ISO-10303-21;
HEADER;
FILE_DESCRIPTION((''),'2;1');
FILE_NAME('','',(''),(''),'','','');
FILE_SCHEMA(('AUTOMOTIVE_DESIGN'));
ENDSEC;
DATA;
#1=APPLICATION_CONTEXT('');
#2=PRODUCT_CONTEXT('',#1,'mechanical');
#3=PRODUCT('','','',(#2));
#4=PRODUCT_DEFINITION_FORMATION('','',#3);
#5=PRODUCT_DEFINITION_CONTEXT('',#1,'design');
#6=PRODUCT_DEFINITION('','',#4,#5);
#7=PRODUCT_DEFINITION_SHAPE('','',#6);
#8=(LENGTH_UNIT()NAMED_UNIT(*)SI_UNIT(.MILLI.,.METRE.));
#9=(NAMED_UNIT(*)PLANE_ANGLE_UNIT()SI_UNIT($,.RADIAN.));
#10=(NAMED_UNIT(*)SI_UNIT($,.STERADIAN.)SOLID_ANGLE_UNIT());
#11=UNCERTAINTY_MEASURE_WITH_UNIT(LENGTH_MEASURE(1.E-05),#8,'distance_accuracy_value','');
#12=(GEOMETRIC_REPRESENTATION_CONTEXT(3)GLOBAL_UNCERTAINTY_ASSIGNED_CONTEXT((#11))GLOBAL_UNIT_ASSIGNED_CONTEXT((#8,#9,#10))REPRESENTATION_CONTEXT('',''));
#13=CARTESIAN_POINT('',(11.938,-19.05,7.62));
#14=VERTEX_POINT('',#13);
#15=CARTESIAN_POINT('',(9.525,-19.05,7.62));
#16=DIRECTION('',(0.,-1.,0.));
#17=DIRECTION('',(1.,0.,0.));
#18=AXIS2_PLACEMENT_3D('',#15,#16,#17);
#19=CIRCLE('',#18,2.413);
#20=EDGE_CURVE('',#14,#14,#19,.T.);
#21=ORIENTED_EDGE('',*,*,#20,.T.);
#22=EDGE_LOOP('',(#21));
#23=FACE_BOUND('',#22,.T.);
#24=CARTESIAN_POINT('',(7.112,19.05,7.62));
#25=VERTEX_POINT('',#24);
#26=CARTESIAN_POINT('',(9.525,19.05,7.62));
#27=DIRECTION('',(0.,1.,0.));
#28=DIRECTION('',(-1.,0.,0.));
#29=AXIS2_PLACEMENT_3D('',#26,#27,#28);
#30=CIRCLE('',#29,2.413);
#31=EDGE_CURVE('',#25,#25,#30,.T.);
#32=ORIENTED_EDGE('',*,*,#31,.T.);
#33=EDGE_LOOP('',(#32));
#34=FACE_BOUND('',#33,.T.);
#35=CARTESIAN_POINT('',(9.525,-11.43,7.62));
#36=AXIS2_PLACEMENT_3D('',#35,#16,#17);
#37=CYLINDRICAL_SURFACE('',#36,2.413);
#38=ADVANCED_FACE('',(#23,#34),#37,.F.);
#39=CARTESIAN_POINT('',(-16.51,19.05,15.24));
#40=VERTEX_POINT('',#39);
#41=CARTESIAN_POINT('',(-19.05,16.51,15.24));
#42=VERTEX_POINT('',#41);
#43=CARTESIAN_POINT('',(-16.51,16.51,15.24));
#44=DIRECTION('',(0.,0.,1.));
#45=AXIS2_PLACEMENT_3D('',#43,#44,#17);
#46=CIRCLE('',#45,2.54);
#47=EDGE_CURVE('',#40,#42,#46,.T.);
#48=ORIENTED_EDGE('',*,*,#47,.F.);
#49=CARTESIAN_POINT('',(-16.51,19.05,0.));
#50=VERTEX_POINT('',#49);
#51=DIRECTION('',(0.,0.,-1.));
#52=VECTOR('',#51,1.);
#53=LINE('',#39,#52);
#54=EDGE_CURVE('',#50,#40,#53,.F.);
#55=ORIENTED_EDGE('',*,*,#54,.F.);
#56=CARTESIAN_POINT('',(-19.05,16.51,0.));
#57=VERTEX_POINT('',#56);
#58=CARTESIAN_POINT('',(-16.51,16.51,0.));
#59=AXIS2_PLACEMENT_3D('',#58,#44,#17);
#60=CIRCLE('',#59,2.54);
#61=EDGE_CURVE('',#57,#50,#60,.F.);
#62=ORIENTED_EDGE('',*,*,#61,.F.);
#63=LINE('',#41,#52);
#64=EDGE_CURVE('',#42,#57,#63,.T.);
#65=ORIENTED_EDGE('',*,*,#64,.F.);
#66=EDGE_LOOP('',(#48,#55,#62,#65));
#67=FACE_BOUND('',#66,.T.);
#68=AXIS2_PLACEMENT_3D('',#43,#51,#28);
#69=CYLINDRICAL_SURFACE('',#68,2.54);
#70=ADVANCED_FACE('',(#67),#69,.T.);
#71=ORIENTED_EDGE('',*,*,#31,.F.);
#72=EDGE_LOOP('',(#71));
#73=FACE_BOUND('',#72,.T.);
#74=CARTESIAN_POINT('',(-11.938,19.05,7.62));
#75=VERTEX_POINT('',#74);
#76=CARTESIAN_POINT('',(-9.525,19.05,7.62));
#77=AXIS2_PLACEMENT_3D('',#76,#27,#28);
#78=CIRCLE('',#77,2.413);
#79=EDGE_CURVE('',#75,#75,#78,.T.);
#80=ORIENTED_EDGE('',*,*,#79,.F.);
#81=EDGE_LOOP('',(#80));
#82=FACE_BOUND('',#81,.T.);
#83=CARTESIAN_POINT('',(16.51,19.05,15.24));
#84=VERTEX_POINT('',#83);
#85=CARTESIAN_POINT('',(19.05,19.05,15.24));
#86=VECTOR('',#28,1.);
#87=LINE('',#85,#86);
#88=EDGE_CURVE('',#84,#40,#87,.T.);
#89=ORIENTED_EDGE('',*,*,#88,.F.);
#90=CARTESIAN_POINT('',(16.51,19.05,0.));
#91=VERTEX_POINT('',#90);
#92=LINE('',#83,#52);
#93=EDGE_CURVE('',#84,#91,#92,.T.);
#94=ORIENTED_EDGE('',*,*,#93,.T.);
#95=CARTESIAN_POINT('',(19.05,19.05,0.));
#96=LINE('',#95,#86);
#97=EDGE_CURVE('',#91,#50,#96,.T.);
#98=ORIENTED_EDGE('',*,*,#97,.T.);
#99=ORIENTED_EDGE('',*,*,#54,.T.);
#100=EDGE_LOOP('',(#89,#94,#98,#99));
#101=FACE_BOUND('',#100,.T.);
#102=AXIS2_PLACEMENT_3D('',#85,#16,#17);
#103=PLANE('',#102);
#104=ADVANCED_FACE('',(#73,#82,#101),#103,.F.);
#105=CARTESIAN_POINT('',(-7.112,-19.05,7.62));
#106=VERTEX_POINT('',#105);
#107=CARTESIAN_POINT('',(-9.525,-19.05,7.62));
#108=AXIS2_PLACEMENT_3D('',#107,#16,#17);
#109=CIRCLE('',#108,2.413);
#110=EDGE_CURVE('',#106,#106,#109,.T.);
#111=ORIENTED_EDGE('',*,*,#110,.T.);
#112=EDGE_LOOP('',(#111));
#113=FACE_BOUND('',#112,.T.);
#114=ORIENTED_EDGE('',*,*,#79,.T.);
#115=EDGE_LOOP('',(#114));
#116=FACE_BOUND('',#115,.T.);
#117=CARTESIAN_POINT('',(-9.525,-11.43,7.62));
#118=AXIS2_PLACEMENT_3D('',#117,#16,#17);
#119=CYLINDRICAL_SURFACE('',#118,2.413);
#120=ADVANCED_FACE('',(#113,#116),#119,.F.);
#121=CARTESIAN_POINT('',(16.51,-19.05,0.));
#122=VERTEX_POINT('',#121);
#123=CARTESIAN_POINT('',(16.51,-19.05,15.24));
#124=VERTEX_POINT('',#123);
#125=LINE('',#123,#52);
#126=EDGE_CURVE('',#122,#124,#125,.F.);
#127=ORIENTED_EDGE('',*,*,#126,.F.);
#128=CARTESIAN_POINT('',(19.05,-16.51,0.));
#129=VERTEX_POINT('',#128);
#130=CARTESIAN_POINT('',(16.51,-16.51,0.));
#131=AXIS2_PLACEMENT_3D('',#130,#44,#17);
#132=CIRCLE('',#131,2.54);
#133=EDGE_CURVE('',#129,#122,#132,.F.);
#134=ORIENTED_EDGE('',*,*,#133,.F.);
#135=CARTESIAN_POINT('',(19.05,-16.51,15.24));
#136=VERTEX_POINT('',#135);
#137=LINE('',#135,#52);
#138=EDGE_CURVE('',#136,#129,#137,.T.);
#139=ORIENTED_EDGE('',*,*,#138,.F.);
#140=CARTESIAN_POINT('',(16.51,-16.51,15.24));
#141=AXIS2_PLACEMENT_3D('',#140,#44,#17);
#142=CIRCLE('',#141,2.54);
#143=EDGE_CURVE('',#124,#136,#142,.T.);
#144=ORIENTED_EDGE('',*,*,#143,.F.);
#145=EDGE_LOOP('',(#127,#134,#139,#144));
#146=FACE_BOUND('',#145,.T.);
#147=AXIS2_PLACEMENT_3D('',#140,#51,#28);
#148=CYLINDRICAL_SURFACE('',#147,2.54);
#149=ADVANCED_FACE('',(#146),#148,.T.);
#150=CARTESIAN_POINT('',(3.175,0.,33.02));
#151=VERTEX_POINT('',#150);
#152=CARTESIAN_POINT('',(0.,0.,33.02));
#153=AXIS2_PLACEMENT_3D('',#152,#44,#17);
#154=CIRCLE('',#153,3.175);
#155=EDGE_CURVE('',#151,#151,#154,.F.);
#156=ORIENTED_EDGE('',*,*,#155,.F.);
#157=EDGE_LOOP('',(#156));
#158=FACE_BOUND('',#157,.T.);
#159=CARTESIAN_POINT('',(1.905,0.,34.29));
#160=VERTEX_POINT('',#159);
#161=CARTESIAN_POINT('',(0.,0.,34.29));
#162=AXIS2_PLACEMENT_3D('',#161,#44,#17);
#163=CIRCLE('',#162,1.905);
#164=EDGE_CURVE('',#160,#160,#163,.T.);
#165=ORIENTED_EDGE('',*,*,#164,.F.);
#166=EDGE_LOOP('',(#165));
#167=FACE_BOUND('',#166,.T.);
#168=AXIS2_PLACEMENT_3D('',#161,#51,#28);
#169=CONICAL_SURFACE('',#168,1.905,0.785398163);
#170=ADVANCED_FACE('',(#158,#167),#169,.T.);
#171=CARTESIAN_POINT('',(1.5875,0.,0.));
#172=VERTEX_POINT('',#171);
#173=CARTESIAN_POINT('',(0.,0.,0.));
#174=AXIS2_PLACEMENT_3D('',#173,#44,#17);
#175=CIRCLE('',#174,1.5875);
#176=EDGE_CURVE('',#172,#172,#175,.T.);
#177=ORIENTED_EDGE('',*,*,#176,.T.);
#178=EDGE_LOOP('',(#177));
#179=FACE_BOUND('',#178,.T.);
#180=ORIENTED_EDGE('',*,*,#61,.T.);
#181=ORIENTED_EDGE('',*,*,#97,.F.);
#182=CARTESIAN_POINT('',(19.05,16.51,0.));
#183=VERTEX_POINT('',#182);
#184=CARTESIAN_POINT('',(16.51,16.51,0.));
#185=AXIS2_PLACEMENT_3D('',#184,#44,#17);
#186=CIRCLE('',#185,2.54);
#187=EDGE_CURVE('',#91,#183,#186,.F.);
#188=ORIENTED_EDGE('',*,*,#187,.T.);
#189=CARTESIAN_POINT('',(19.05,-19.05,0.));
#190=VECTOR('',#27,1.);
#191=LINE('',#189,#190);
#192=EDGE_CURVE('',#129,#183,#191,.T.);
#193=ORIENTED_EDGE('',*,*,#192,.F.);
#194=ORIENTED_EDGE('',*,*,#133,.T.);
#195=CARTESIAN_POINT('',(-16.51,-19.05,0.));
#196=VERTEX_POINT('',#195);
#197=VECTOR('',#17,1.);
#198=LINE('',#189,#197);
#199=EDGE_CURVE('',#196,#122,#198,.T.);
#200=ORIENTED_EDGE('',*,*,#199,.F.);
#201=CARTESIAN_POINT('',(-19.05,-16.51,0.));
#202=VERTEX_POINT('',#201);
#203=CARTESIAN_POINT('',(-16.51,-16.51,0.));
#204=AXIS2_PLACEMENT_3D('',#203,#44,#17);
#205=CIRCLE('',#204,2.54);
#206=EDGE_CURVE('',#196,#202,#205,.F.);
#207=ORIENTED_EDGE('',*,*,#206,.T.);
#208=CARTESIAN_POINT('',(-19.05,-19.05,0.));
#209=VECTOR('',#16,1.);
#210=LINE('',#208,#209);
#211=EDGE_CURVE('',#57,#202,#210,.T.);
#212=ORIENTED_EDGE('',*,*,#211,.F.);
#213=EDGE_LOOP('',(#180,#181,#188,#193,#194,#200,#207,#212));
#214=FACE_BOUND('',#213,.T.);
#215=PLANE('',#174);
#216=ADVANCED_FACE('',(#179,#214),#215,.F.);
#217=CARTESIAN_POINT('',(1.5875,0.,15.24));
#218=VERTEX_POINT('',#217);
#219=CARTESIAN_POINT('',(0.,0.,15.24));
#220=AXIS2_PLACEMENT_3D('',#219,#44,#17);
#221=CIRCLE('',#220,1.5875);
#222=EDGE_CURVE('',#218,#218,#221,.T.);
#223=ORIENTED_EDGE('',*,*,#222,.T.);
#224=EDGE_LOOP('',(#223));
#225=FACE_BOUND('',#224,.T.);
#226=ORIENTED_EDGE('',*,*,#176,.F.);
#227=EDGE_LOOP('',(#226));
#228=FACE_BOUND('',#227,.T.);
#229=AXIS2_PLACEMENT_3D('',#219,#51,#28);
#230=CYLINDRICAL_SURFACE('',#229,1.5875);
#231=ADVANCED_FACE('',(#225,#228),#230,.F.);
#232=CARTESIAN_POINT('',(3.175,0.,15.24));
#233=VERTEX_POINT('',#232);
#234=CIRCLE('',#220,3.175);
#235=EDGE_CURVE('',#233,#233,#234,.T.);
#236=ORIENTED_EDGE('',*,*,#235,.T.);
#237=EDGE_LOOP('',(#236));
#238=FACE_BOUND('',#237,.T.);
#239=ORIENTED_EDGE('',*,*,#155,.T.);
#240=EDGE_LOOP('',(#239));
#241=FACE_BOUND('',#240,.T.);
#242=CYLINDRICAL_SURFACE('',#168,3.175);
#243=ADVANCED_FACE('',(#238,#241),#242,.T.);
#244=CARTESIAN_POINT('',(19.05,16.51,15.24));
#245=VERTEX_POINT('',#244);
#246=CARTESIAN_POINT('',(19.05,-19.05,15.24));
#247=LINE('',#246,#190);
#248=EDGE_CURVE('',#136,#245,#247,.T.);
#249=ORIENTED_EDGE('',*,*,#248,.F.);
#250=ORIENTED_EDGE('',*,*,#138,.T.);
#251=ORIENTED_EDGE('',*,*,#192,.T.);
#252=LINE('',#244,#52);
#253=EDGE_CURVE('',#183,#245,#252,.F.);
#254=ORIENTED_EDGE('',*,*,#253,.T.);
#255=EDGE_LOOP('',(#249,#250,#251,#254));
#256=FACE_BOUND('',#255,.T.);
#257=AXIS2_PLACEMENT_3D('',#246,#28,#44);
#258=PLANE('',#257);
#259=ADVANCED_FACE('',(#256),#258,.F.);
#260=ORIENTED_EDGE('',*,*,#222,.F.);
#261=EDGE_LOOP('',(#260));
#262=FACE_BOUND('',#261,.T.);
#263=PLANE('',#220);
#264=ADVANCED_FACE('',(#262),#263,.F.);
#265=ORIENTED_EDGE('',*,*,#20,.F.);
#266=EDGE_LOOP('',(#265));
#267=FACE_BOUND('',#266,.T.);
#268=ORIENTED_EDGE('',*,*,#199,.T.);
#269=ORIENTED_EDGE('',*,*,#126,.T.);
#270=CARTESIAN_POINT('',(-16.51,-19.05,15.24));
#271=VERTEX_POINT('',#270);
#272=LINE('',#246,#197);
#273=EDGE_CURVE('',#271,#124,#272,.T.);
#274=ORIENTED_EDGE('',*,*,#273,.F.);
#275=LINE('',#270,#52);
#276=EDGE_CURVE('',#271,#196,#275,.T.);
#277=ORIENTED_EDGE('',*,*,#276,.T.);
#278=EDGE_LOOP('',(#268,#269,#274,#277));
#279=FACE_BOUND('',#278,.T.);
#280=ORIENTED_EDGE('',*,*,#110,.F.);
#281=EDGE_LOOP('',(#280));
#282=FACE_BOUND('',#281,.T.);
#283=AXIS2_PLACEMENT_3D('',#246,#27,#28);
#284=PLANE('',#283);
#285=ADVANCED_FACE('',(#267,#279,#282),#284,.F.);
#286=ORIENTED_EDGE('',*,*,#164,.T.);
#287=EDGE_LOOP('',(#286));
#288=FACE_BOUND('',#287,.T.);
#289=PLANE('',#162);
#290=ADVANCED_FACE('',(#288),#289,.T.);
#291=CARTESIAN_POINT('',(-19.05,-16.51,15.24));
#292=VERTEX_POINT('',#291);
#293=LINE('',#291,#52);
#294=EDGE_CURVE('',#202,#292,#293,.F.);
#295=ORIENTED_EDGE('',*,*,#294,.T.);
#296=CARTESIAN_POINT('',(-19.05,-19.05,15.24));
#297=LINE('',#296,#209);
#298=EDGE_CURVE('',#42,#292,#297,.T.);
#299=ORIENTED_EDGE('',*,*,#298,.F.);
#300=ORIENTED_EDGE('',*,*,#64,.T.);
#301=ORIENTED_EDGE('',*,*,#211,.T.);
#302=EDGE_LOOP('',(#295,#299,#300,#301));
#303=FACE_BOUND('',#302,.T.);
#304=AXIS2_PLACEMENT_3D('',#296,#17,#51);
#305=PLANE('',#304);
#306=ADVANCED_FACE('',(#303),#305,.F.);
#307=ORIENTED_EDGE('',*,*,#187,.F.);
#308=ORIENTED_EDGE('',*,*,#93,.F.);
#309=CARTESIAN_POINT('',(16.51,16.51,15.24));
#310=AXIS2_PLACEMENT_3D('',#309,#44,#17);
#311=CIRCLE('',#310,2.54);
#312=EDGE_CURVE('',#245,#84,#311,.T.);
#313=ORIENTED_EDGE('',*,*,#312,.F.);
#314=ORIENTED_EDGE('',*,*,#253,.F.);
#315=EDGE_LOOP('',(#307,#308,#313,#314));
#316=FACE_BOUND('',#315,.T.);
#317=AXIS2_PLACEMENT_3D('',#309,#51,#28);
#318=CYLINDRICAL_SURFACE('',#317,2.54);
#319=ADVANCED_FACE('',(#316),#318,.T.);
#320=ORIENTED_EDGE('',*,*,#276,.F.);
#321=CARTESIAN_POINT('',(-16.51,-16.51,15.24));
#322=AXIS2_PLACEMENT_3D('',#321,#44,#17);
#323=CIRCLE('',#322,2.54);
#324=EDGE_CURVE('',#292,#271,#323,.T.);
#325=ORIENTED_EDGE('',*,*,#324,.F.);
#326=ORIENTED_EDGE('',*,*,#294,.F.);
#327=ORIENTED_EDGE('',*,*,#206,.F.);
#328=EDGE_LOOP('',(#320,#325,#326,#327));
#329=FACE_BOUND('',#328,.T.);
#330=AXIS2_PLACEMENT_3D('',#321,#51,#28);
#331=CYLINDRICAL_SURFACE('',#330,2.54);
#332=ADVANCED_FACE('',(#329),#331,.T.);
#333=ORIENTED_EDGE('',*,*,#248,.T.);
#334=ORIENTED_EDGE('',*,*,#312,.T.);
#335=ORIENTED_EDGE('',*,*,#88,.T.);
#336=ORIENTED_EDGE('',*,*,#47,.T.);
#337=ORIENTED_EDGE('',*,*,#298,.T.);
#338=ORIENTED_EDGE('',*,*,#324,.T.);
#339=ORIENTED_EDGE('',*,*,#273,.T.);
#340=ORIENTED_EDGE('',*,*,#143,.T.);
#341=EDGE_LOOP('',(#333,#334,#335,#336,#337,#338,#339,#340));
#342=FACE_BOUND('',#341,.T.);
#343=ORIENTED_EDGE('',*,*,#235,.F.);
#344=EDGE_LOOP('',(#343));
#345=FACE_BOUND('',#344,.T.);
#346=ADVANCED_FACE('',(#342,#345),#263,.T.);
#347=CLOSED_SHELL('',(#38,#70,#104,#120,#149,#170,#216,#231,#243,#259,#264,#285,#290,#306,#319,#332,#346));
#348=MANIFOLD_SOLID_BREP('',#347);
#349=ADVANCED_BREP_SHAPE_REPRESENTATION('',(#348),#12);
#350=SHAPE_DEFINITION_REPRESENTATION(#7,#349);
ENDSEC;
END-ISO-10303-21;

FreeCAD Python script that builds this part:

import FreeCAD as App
import Part
import Sketcher

V = App.Vector
Q = App.Units.Quantity


def edges_at(feature, points):
    """Names of the edges that pass closest to the given points."""
    edges = feature.Shape.Edges
    near = lambda p: min(range(len(edges)), key=lambda i: edges[i].distToShape(Part.Vertex(*p))[0])
    return sorted({f"Edge{near(p) + 1}" for p in points})

doc = App.newDocument("Part")
params = doc.addObject("Spreadsheet::Sheet", "Params")
for row, (alias, value) in enumerate([
    ("sketch1_diameter", "0.125 in"),
    ("sketch1_width", "1.5 in"),
    ("pad1_length", "0.6 in"),
    ("sketch2_diameter", "0.25 in"),
    ("pad2_length", "0.75 in"),
    ("fillet_radius", "0.1 in"),
    ("chamfer_size", "0.05 in"),
    ("sketch3_diameter", "0.19 in"),
    ("pocket1_length", "0.3 in"),
    ("sketch4_diameter", "0.19 in"),
    ("pocket2_length", "0.3 in"),
    ("sketch5_diameter", "0.19 in"),
], start=1):
    params.set(f"A{row}", alias)
    params.set(f"B{row}", "=" + value)
    params.setAlias(f"B{row}", alias)

body = doc.addObject("PartDesign::Body", "Body")

# Sketch on XY plane
sketch1 = body.newObject("Sketcher::SketchObject", "Sketch")
sketch1.AttachmentSupport = (doc.getObject("XY_Plane"), [""])
sketch1.MapMode = "FlatFace"
sketch1.addGeometry(Part.LineSegment(V(-19.05, 19.05, 0), V(-19.05, -19.05, 0)), False)
sketch1.addGeometry(Part.LineSegment(V(-19.05, -19.05, 0), V(19.05, -19.05, 0)), False)
sketch1.addGeometry(Part.LineSegment(V(19.05, -19.05, 0), V(19.05, 19.05, 0)), False)
sketch1.addGeometry(Part.LineSegment(V(19.05, 19.05, 0), V(-19.05, 19.05, 0)), False)
sketch1.addGeometry(Part.Circle(V(0, 0, 0), V(0, 0, 1), 1.5875), False)
sketch1.addConstraint(Sketcher.Constraint("Coincident", 0, 2, 1, 1))
sketch1.addConstraint(Sketcher.Constraint("Coincident", 1, 2, 2, 1))
sketch1.addConstraint(Sketcher.Constraint("Coincident", 2, 2, 3, 1))
sketch1.addConstraint(Sketcher.Constraint("Coincident", 3, 2, 0, 1))
sketch1.addConstraint(Sketcher.Constraint("Vertical", 0))
sketch1.addConstraint(Sketcher.Constraint("Horizontal", 1))
sketch1.addConstraint(Sketcher.Constraint("Vertical", 2))
sketch1.addConstraint(Sketcher.Constraint("Horizontal", 3))
sketch1.addConstraint(Sketcher.Constraint("Coincident", 4, 3, -1, 1))
sketch1.addConstraint(Sketcher.Constraint("Symmetric", 0, 2, 2, 2, -1, 1))
sketch1.addConstraint(Sketcher.Constraint("Equal", 3, 0))
sketch1.addConstraint(Sketcher.Constraint("Diameter", 4, Q("0.125 in")))
sketch1.addConstraint(Sketcher.Constraint("DistanceX", 1, 1, 1, 2, Q("1.5 in")))
sketch1.setExpression("Constraints[11]", "Params.sketch1_diameter")
sketch1.setExpression("Constraints[12]", "Params.sketch1_width")
pad1 = body.newObject("PartDesign::Pad", "Pad")
pad1.Profile = sketch1
pad1.setExpression("Length", "Params.pad1_length")

# Sketch on XY plane
sketch2 = body.newObject("Sketcher::SketchObject", "Sketch001")
sketch2.AttachmentSupport = (doc.getObject("XY_Plane"), [""])
sketch2.MapMode = "FlatFace"
sketch2.AttachmentOffset = App.Placement(V(0, 0, 0.6 * 25.4), App.Rotation())
sketch2.addGeometry(Part.Circle(V(0, 0, 0), V(0, 0, 1), 3.175), False)
sketch2.addConstraint(Sketcher.Constraint("Coincident", 0, 3, -1, 1))
sketch2.addConstraint(Sketcher.Constraint("Diameter", 0, Q("0.25 in")))
sketch2.setExpression("Constraints[1]", "Params.sketch2_diameter")
pad2 = body.newObject("PartDesign::Pad", "Pad001")
pad2.Profile = sketch2
pad2.setExpression("Length", "Params.pad2_length")
doc.recompute()

fillet = body.newObject("PartDesign::Fillet", "Fillet")
fillet.Base = (pad2, edges_at(pad2, [
    (-19.05, 19.05, 7.62),
    (19.05, 19.05, 7.62),
    (19.05, -19.05, 7.62),
    (-19.05, -19.05, 7.62),
]))
fillet.setExpression("Radius", "Params.fillet_radius")
doc.recompute()

chamfer = body.newObject("PartDesign::Chamfer", "Chamfer")
chamfer.Base = (fillet, edges_at(fillet, [(-3.175, 0, 34.29)]))
chamfer.setExpression("Size", "Params.chamfer_size")

# Sketch on XZ plane
sketch3 = body.newObject("Sketcher::SketchObject", "Sketch002")
sketch3.AttachmentSupport = (doc.getObject("XZ_Plane"), [""])
sketch3.MapMode = "FlatFace"
sketch3.AttachmentOffset = App.Placement(V(0, 0, 0.75 * 25.4), App.Rotation())
sketch3.addGeometry(Part.Circle(V(-9.525, 7.62, 0), V(0, 0, 1), 2.413), False)
sketch3.addGeometry(Part.Circle(V(9.525, 7.62, 0), V(0, 0, 1), 2.413), False)
sketch3.addConstraint(Sketcher.Constraint("Equal", 0, 1))
sketch3.addConstraint(Sketcher.Constraint("Symmetric", 0, 3, 1, 3, -2))
sketch3.addConstraint(Sketcher.Constraint("Diameter", 0, Q("0.19 in")))
sketch3.addConstraint(Sketcher.Constraint("DistanceY", -1, 1, 0, 3, Q("0.3 in")))
sketch3.addConstraint(Sketcher.Constraint("DistanceX", 0, 3, 1, 3, Q("0.75 in")))
sketch3.setExpression("Constraints[2]", "Params.sketch3_diameter")
pocket1 = body.newObject("PartDesign::Pocket", "Pocket")
pocket1.Profile = sketch3
pocket1.setExpression("Length", "Params.pocket1_length")

# Sketch on XZ plane
sketch4 = body.newObject("Sketcher::SketchObject", "Sketch003")
sketch4.AttachmentSupport = (doc.getObject("XZ_Plane"), [""])
sketch4.MapMode = "FlatFace"
sketch4.AttachmentOffset = App.Placement(V(0, 0, -0.75 * 25.4), App.Rotation())
sketch4.addGeometry(Part.Circle(V(9.525, 7.62, 0), V(0, 0, 1), 2.413), False)
sketch4.addGeometry(Part.Circle(V(-9.525, 7.62, 0), V(0, 0, 1), 2.413), False)
sketch4.addConstraint(Sketcher.Constraint("Equal", 0, 1))
sketch4.addConstraint(Sketcher.Constraint("Symmetric", 0, 3, 1, 3, -2))
sketch4.addConstraint(Sketcher.Constraint("Diameter", 0, Q("0.19 in")))
sketch4.addConstraint(Sketcher.Constraint("DistanceY", -1, 1, 0, 3, Q("0.3 in")))
sketch4.addConstraint(Sketcher.Constraint("DistanceX", 1, 3, 0, 3, Q("0.75 in")))
sketch4.setExpression("Constraints[2]", "Params.sketch4_diameter")
pocket2 = body.newObject("PartDesign::Pocket", "Pocket001")
pocket2.Profile = sketch4
pocket2.setExpression("Length", "Params.pocket2_length")
pocket2.Reversed = True

# Sketch on XZ plane
sketch5 = body.newObject("Sketcher::SketchObject", "Sketch004")
sketch5.AttachmentSupport = (doc.getObject("XZ_Plane"), [""])
sketch5.MapMode = "FlatFace"
sketch5.AttachmentOffset = App.Placement(V(0, 0, -0.75 * 25.4), App.Rotation())
sketch5.addGeometry(Part.Circle(V(9.525, 7.62, 0), V(0, 0, 1), 2.413), False)
sketch5.addGeometry(Part.Circle(V(-9.525, 7.62, 0), V(0, 0, 1), 2.413), False)
sketch5.addConstraint(Sketcher.Constraint("Equal", 0, 1))
sketch5.addConstraint(Sketcher.Constraint("Symmetric", 0, 3, 1, 3, -2))
sketch5.addConstraint(Sketcher.Constraint("Diameter", 0, Q("0.19 in")))
sketch5.addConstraint(Sketcher.Constraint("DistanceY", -1, 1, 0, 3, Q("0.3 in")))
sketch5.addConstraint(Sketcher.Constraint("DistanceX", 1, 3, 0, 3, Q("0.75 in")))
sketch5.setExpression("Constraints[2]", "Params.sketch5_diameter")
pocket3 = body.newObject("PartDesign::Pocket", "Pocket002")
pocket3.Profile = sketch5
pocket3.Type = "ThroughAll"
pocket3.Reversed = True

doc.recompute()
